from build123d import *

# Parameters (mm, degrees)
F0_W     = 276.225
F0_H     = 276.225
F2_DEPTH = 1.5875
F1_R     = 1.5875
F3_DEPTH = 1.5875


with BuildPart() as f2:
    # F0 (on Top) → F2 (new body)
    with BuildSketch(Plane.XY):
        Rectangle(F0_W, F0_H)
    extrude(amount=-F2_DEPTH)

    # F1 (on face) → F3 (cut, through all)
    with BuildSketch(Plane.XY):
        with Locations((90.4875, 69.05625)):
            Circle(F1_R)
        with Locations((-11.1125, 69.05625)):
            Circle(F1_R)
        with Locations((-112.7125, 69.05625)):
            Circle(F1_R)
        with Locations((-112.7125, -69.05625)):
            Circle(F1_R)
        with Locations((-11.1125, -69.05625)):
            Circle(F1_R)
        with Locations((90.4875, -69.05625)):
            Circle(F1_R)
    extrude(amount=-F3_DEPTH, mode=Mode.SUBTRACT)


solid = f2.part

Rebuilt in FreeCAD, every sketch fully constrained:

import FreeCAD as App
import Part
import Sketcher
Q = App.Units.Quantity

doc = App.newDocument("Part")
body = doc.addObject("PartDesign::Body", "Body")

# Sketch on XY plane
sketch1 = doc.addObject("Sketcher::SketchObject", "Sketch")
body.addObject(sketch1)
sketch1.AttachmentSupport = (doc.XY_Plane, [""])
sketch1.MapMode = "FlatFace"
sketch1.addGeometry([
    Part.LineSegment(App.Vector(-138, 138, 0), App.Vector(-138, -138, 0)),
    Part.LineSegment(App.Vector(-138, -138, 0), App.Vector(138, -138, 0)),
    Part.LineSegment(App.Vector(138, -138, 0), App.Vector(138, 138, 0)),
    Part.LineSegment(App.Vector(138, 138, 0), App.Vector(-138, 138, 0)),
], False)
sketch1.addConstraint([
    Sketcher.Constraint("Coincident", 0, 2, 1, 1),
    Sketcher.Constraint("Coincident", 1, 2, 2, 1),
    Sketcher.Constraint("Coincident", 2, 2, 3, 1),
    Sketcher.Constraint("Coincident", 3, 2, 0, 1),
    Sketcher.Constraint("Vertical", 0),
    Sketcher.Constraint("Horizontal", 1),
    Sketcher.Constraint("Vertical", 2),
    Sketcher.Constraint("Horizontal", 3),
    Sketcher.Constraint("Symmetric", 0, 2, 2, 2, -1, 1),
    Sketcher.Constraint("Equal", 3, 0),
    Sketcher.Constraint("DistanceX", 1, 1, 1, 2, Q("10.875 in")),
])
pad1 = doc.addObject("PartDesign::Pad", "Pad")
body.addObject(pad1)
pad1.Profile = sketch1
pad1.Length = Q("0.0625 in")
pad1.Reversed = True

# Sketch on XY plane
sketch2 = doc.addObject("Sketcher::SketchObject", "Sketch001")
body.addObject(sketch2)
sketch2.AttachmentSupport = (doc.XY_Plane, [""])
sketch2.MapMode = "FlatFace"
sketch2.addGeometry([
    Part.Circle(App.Vector(90.5, 69.1, 0), App.Vector(0, 0, 1), 1.6),  # 0
    Part.Circle(App.Vector(-11.1, 69.1, 0), App.Vector(0, 0, 1), 1.6),  # 1
    Part.Circle(App.Vector(-112.7, 69.1, 0), App.Vector(0, 0, 1), 1.6),  # 2
    Part.Circle(App.Vector(-112.7, -69.1, 0), App.Vector(0, 0, 1), 1.6),  # 3
    Part.Circle(App.Vector(-11.1, -69.1, 0), App.Vector(0, 0, 1), 1.6),  # 4
    Part.Circle(App.Vector(90.5, -69.1, 0), App.Vector(0, 0, 1), 1.6),  # 5
], False)
sketch2.addConstraint([
    Sketcher.Constraint("Equal", 0, 1),
    Sketcher.Constraint("Equal", 1, 2),
    Sketcher.Constraint("Equal", 2, 3),
    Sketcher.Constraint("Equal", 3, 4),
    Sketcher.Constraint("Equal", 4, 5),
    Sketcher.Constraint("Symmetric", 2, 3, 3, 3, -1),
    Sketcher.Constraint("Symmetric", 1, 3, 4, 3, -1),
    Sketcher.Constraint("Symmetric", 0, 3, 5, 3, -1),
    Sketcher.Constraint("Horizontal", 0, 3, 1, 3),
    Sketcher.Constraint("Horizontal", 1, 3, 2, 3),
    Sketcher.Constraint("Diameter", 0, Q("0.125 in")),
    Sketcher.Constraint("DistanceX", 1, 3, 0, 3, Q("4 in")),
    Sketcher.Constraint("DistanceX", 2, 3, 1, 3, Q("4 in")),
    Sketcher.Constraint("DistanceX", -1, 1, 0, 3, Q("3.5625 in")),
    Sketcher.Constraint("DistanceY", -1, 1, 0, 3, Q("2.71875 in")),
])
pocket1 = doc.addObject("PartDesign::Pocket", "Pocket")
body.addObject(pocket1)
pocket1.Profile = sketch2
pocket1.Type = "ThroughAll"

doc.recompute()
